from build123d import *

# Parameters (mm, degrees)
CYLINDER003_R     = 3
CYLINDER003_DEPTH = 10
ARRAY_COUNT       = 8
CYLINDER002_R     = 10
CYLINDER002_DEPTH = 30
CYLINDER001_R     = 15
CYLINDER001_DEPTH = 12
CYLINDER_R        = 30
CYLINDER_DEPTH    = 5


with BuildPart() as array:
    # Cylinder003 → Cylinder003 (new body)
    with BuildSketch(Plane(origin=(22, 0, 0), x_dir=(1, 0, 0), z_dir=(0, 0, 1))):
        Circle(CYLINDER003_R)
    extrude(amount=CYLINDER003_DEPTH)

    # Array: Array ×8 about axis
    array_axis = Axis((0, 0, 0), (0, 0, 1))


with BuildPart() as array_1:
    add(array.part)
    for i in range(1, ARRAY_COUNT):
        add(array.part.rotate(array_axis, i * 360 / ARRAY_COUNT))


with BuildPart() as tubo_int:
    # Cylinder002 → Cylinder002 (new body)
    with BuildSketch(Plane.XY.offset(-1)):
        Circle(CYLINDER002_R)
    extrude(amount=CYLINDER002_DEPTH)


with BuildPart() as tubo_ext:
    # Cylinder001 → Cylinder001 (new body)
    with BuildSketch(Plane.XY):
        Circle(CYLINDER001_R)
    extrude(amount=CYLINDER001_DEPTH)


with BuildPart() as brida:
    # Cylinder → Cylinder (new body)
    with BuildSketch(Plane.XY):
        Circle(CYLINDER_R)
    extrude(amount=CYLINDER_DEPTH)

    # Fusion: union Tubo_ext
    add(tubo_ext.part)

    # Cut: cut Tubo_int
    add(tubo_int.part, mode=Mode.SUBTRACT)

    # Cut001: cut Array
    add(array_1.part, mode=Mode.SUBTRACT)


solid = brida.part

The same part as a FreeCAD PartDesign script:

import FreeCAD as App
import Part
import Sketcher
from FreeCAD import Vector
Q = App.Units.Quantity

doc = App.newDocument("Part")
params = doc.addObject("Spreadsheet::Sheet", "Params")
for row, (alias, value) in enumerate([
    ("sketch1_diameter", "6 mm"),
    ("pad1_length", "10 mm"),
    ("sketch2_diameter", "20 mm"),
    ("pad2_length", "30 mm"),
    ("sketch3_diameter", "30 mm"),
    ("pad3_length", "12 mm"),
    ("sketch4_diameter", "60 mm"),
    ("pad4_length", "5 mm"),
], start=1):
    params.set(f"A{row}", alias)
    params.set(f"B{row}", "=" + value)
    params.setAlias(f"B{row}", alias)

body = doc.addObject("PartDesign::Body", "Body")

sketch1 = body.newObject("Sketcher::SketchObject", "Sketch")
sketch1.AttachmentSupport = (doc.getObject("XY_Plane"), [""])
sketch1.MapMode = "FlatFace"
sketch1.addGeometry(Part.Circle(Vector(22, 0, 0), Vector(0, 0, 1), 3), False)
sketch1.addConstraint([
    Sketcher.Constraint("PointOnObject", 0, 3, -1),
    Sketcher.Constraint("Diameter", 0, Q("6 mm")),
    Sketcher.Constraint("DistanceX", -1, 1, 0, 3, Q("22 mm")),
])
sketch1.setExpression("Constraints[1]", "Params.sketch1_diameter")
pad1 = body.newObject("PartDesign::Pad", "Pad")
pad1.Profile = sketch1
pad1.setExpression("Length", "Params.pad1_length")
body2 = doc.addObject("PartDesign::Body", "Body001")
body2.AllowCompound = True
doc.recompute()

body2.BaseFeature = body
doc.recompute()

body3 = doc.addObject("PartDesign::Body", "Body002")
body3.BaseFeature = body
body3.Placement = App.Placement(Vector(0, 0, 0), App.Rotation(Vector(0, 0, 1), 45))
boolean = body2.newObject("PartDesign::Boolean", "Boolean")
boolean.Type = "Fuse"
boolean.addObjects([body3])
doc.recompute()

body4 = doc.addObject("PartDesign::Body", "Body003")
body4.BaseFeature = body
body4.Placement = App.Placement(Vector(0, 0, 0), App.Rotation(Vector(0, 0, 1), 90))
boolean2 = body2.newObject("PartDesign::Boolean", "Boolean001")
boolean2.Type = "Fuse"
boolean2.addObjects([body4])
doc.recompute()

body5 = doc.addObject("PartDesign::Body", "Body004")
body5.BaseFeature = body
body5.Placement = App.Placement(Vector(0, 0, 0), App.Rotation(Vector(0, 0, 1), 135))
boolean3 = body2.newObject("PartDesign::Boolean", "Boolean002")
boolean3.Type = "Fuse"
boolean3.addObjects([body5])
doc.recompute()

body6 = doc.addObject("PartDesign::Body", "Body005")
body6.BaseFeature = body
body6.Placement = App.Placement(Vector(0, 0, 0), App.Rotation(Vector(0, 0, 1), 180))
boolean4 = body2.newObject("PartDesign::Boolean", "Boolean003")
boolean4.Type = "Fuse"
boolean4.addObjects([body6])
doc.recompute()

body7 = doc.addObject("PartDesign::Body", "Body006")
body7.BaseFeature = body
body7.Placement = App.Placement(Vector(0, 0, 0), App.Rotation(Vector(0, 0, 1), 225))
boolean5 = body2.newObject("PartDesign::Boolean", "Boolean004")
boolean5.Type = "Fuse"
boolean5.addObjects([body7])
doc.recompute()

body8 = doc.addObject("PartDesign::Body", "Body007")
body8.BaseFeature = body
body8.Placement = App.Placement(Vector(0, 0, 0), App.Rotation(Vector(0, 0, 1), 270))
boolean6 = body2.newObject("PartDesign::Boolean", "Boolean005")
boolean6.Type = "Fuse"
boolean6.addObjects([body8])
doc.recompute()

body.Placement = App.Placement(Vector(0, 0, 0), App.Rotation(Vector(0, 0, 1), 315))
boolean7 = body2.newObject("PartDesign::Boolean", "Boolean006")
boolean7.Type = "Fuse"
boolean7.addObjects([body])
body9 = doc.addObject("PartDesign::Body", "Body008")

sketch2 = body9.newObject("Sketcher::SketchObject", "Sketch001")
sketch2.AttachmentSupport = (doc.getObject("XY_Plane008"), [""])
sketch2.MapMode = "FlatFace"
sketch2.AttachmentOffset = App.Placement(Vector(0, 0, -1), App.Rotation())
sketch2.addGeometry(Part.Circle(Vector(0, 0, 0), Vector(0, 0, 1), 10), False)
sketch2.addConstraint([
    Sketcher.Constraint("Coincident", 0, 3, -1, 1),
    Sketcher.Constraint("Diameter", 0, Q("20 mm")),
])
sketch2.setExpression("Constraints[1]", "Params.sketch2_diameter")
pad2 = body9.newObject("PartDesign::Pad", "Pad001")
pad2.Profile = sketch2
pad2.setExpression("Length", "Params.pad2_length")
body10 = doc.addObject("PartDesign::Body", "Body009")

sketch3 = body10.newObject("Sketcher::SketchObject", "Sketch002")
sketch3.AttachmentSupport = (doc.getObject("XY_Plane009"), [""])
sketch3.MapMode = "FlatFace"
sketch3.addGeometry(Part.Circle(Vector(0, 0, 0), Vector(0, 0, 1), 15), False)
sketch3.addConstraint([
    Sketcher.Constraint("Coincident", 0, 3, -1, 1),
    Sketcher.Constraint("Diameter", 0, Q("30 mm")),
])
sketch3.setExpression("Constraints[1]", "Params.sketch3_diameter")
pad3 = body10.newObject("PartDesign::Pad", "Pad002")
pad3.Profile = sketch3
pad3.setExpression("Length", "Params.pad3_length")
body11 = doc.addObject("PartDesign::Body", "Body010")

sketch4 = body11.newObject("Sketcher::SketchObject", "Sketch003")
sketch4.AttachmentSupport = (doc.getObject("XY_Plane010"), [""])
sketch4.MapMode = "FlatFace"
sketch4.addGeometry(Part.Circle(Vector(0, 0, 0), Vector(0, 0, 1), 30), False)
sketch4.addConstraint([
    Sketcher.Constraint("Coincident", 0, 3, -1, 1),
    Sketcher.Constraint("Diameter", 0, Q("60 mm")),
])
sketch4.setExpression("Constraints[1]", "Params.sketch4_diameter")
pad4 = body11.newObject("PartDesign::Pad", "Pad003")
pad4.Profile = sketch4
pad4.setExpression("Length", "Params.pad4_length")
doc.recompute()

boolean8 = body11.newObject("PartDesign::Boolean", "Boolean007")
boolean8.Type = "Fuse"
boolean8.addObjects([body10])
doc.recompute()

boolean9 = body11.newObject("PartDesign::Boolean", "Boolean008")
boolean9.Type = "Cut"
boolean9.addObjects([body9])
doc.recompute()

boolean10 = body11.newObject("PartDesign::Boolean", "Boolean009")
boolean10.Type = "Cut"
boolean10.addObjects([body2])

doc.recompute()
